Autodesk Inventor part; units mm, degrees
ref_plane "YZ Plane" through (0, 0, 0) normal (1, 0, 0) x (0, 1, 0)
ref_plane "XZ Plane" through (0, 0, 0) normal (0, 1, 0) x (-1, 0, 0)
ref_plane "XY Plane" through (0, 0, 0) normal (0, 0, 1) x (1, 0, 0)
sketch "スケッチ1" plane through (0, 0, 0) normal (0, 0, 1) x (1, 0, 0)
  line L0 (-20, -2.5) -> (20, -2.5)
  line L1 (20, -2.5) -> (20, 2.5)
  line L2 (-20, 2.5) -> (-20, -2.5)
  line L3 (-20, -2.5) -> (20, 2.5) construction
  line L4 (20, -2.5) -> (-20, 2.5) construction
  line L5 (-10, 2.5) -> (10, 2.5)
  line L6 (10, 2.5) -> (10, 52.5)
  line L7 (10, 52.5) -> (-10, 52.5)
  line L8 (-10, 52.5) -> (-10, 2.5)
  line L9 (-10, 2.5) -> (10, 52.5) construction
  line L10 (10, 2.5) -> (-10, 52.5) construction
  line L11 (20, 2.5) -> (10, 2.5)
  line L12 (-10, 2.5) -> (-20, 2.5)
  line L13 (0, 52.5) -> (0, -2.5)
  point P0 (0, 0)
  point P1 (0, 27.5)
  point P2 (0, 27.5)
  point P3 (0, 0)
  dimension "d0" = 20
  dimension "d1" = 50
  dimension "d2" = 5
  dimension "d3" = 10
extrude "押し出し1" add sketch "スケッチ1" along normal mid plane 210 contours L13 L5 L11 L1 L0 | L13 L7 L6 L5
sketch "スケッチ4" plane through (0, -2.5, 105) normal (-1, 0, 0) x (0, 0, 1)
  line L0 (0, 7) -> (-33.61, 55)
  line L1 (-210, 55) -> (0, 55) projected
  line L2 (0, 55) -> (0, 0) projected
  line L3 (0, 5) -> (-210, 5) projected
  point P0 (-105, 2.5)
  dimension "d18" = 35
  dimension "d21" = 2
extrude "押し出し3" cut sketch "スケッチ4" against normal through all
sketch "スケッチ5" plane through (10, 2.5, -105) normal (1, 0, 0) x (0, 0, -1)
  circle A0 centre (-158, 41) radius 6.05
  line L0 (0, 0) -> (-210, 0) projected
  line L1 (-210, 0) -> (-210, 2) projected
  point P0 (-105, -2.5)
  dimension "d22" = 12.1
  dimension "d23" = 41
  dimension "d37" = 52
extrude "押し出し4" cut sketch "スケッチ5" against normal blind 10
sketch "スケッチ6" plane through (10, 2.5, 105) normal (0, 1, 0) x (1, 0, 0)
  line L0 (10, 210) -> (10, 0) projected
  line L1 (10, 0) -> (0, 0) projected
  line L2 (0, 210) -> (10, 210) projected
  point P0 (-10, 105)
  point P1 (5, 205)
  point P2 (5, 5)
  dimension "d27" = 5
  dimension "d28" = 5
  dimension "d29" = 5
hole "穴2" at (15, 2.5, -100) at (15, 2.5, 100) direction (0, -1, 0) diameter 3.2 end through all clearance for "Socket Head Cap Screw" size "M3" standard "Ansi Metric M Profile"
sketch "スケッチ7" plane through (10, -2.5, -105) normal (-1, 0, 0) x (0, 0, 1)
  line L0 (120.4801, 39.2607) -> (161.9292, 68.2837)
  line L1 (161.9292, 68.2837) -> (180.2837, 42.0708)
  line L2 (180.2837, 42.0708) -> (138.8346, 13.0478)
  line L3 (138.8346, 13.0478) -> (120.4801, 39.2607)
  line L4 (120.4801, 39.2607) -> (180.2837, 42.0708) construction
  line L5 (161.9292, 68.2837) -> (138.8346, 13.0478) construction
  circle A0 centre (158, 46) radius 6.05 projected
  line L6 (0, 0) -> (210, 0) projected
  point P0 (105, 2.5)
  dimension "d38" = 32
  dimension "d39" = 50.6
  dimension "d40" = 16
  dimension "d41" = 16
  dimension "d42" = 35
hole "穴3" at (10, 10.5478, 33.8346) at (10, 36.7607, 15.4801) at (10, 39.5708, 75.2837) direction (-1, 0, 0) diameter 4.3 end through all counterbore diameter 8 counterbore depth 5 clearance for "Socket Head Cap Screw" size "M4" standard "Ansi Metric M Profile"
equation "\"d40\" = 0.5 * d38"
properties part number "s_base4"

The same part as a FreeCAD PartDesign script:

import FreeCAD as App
import Part
import Sketcher

V = App.Vector
Q = App.Units.Quantity

doc = App.newDocument("Part")
body = doc.addObject("PartDesign::Body", "Body")

sketch1 = body.newObject("Sketcher::SketchObject", "Sketch")
sketch1.AttachmentSupport = (doc.getObject("XY_Plane"), [""])
sketch1.MapMode = "FlatFace"
sketch1.addGeometry(Part.LineSegment(V(0, -2, 0), V(20, -2, 0)), False)
sketch1.addGeometry(Part.LineSegment(V(20, -2, 0), V(20, 2, 0)), False)
sketch1.addGeometry(Part.LineSegment(V(20, 2, 0), V(10, 2, 0)), False)
sketch1.addGeometry(Part.LineSegment(V(10, 2, 0), V(10, 52, 0)), False)
sketch1.addGeometry(Part.LineSegment(V(10, 52, 0), V(0, 52, 0)), False)
sketch1.addGeometry(Part.LineSegment(V(0, 52, 0), V(0, -2, 0)), False)
sketch1.addConstraint(Sketcher.Constraint("Coincident", 0, 2, 1, 1))
sketch1.addConstraint(Sketcher.Constraint("Coincident", 1, 2, 2, 1))
sketch1.addConstraint(Sketcher.Constraint("Coincident", 2, 2, 3, 1))
sketch1.addConstraint(Sketcher.Constraint("Coincident", 3, 2, 4, 1))
sketch1.addConstraint(Sketcher.Constraint("Coincident", 4, 2, 5, 1))
sketch1.addConstraint(Sketcher.Constraint("Coincident", 5, 2, 0, 1))
sketch1.addConstraint(Sketcher.Constraint("Horizontal", 0))
sketch1.addConstraint(Sketcher.Constraint("Vertical", 1))
sketch1.addConstraint(Sketcher.Constraint("Horizontal", 2))
sketch1.addConstraint(Sketcher.Constraint("Vertical", 3))
sketch1.addConstraint(Sketcher.Constraint("Horizontal", 4))
sketch1.addConstraint(Sketcher.Constraint("Vertical", 5))
sketch1.addConstraint(Sketcher.Constraint("PointOnObject", 4, 2, -2))
sketch1.addConstraint(Sketcher.Constraint("Equal", 2, 4))
sketch1.addConstraint(Sketcher.Constraint("DistanceX", 0, 1, 0, 2, 20.0))
sketch1.addConstraint(Sketcher.Constraint("DistanceY", 1, 1, 1, 2, 5.0))
sketch1.addConstraint(Sketcher.Constraint("DistanceY", 3, 1, 3, 2, 50.0))
sketch1.addConstraint(Sketcher.Constraint("DistanceY", 0, 2, -1, 1, 2.5))
pad1 = body.newObject("PartDesign::Pad", "Pad")
pad1.Profile = sketch1
pad1.Length = 210
pad1.Midplane = True

sketch2 = body.newObject("Sketcher::SketchObject", "Sketch001")
sketch2.AttachmentSupport = (doc.getObject("YZ_Plane"), [""])
sketch2.MapMode = "FlatFace"
sketch2.addGeometry(Part.LineSegment(V(52, 71, 0), V(4, 105, 0)), False)
sketch2.addGeometry(Part.LineSegment(V(4, 105, 0), V(52, 105, 0)), False)
sketch2.addGeometry(Part.LineSegment(V(52, 105, 0), V(52, 71, 0)), False)
sketch2.addConstraint(Sketcher.Constraint("Coincident", 0, 2, 1, 1))
sketch2.addConstraint(Sketcher.Constraint("Coincident", 1, 2, 2, 1))
sketch2.addConstraint(Sketcher.Constraint("Coincident", 2, 2, 0, 1))
sketch2.addConstraint(Sketcher.Constraint("Horizontal", 1))
sketch2.addConstraint(Sketcher.Constraint("Vertical", 2))
sketch2.addConstraint(Sketcher.Constraint("DistanceX", 1, 1, 1, 2, 48.0))
sketch2.addConstraint(Sketcher.Constraint("Angle", 0, Q("145 deg")))
sketch2.addConstraint(Sketcher.Constraint("DistanceY", -1, 1, 0, 2, 105.0))
sketch2.addConstraint(Sketcher.Constraint("DistanceX", -1, 1, 0, 2, 4.5))
pocket1 = body.newObject("PartDesign::Pocket", "Pocket")
pocket1.Profile = sketch2
pocket1.Type = "ThroughAll"
pocket1.Reversed = True

sketch3 = body.newObject("Sketcher::SketchObject", "Sketch002")
sketch3.AttachmentSupport = (doc.getObject("YZ_Plane"), [""])
sketch3.MapMode = "FlatFace"
sketch3.AttachmentOffset = App.Placement(V(0, 0, 10), App.Rotation())
sketch3.addGeometry(Part.Circle(V(44, 53, 0), V(0, 0, 1), 6), False)
sketch3.addConstraint(Sketcher.Constraint("Diameter", 0, 12.1))
sketch3.addConstraint(Sketcher.Constraint("DistanceY", -1, 1, 0, 3, 53.0))
sketch3.addConstraint(Sketcher.Constraint("DistanceX", -1, 1, 0, 3, 43.5))
pocket2 = body.newObject("PartDesign::Pocket", "Pocket001")
pocket2.Profile = sketch3
pocket2.Length = 10

sketch4 = body.newObject("Sketcher::SketchObject", "Sketch003")
sketch4.AttachmentSupport = (doc.getObject("XZ_Plane"), [""])
sketch4.MapMode = "FlatFace"
sketch4.AttachmentOffset = App.Placement(V(0, 0, -2.5), App.Rotation())
sketch4.addGeometry(Part.Circle(V(15, -100, 0), V(0, 0, 1), 1.6), False)
sketch4.addGeometry(Part.Circle(V(15, 100, 0), V(0, 0, 1), 1.6), False)
sketch4.addConstraint(Sketcher.Constraint("Equal", 0, 1))
sketch4.addConstraint(Sketcher.Constraint("Symmetric", 0, 3, 1, 3, -1))
sketch4.addConstraint(Sketcher.Constraint("Diameter", 0, 3.2))
sketch4.addConstraint(Sketcher.Constraint("DistanceX", -1, 1, 0, 3, 15.0))
sketch4.addConstraint(Sketcher.Constraint("DistanceY", 0, 3, -1, 1, 100.0))
doc.recompute()
hole = body.newObject("PartDesign::Hole", "Hole")
hole.Profile = sketch4
hole.ThreadType = "None"
hole.Diameter = 3.2
hole.DepthType = "ThroughAll"
hole.Reversed = True

sketch5 = body.newObject("Sketcher::SketchObject", "Sketch004")
sketch5.AttachmentSupport = (doc.getObject("YZ_Plane"), [""])
sketch5.MapMode = "FlatFace"
sketch5.AttachmentOffset = App.Placement(V(0, 0, 10), App.Rotation())
sketch5.addGeometry(Part.Circle(V(10.5, 33.8, 0), V(0, 0, 1), 2.1), False)
sketch5.addGeometry(Part.Circle(V(36.8, 15.5, 0), V(0, 0, 1), 2.1), False)
sketch5.addGeometry(Part.Circle(V(39.6, 75.3, 0), V(0, 0, 1), 2.1), False)
sketch5.addConstraint(Sketcher.Constraint("Equal", 0, 1))
sketch5.addConstraint(Sketcher.Constraint("Equal", 1, 2))
sketch5.addConstraint(Sketcher.Constraint("Diameter", 0, 4.3))
sketch5.addConstraint(Sketcher.Constraint("DistanceY", -1, 1, 1, 3, 15.48))
sketch5.addConstraint(Sketcher.Constraint("DistanceX", 1, 3, 2, 3, 2.81))
sketch5.addConstraint(Sketcher.Constraint("DistanceX", 0, 3, 1, 3, 26.213))
sketch5.addConstraint(Sketcher.Constraint("DistanceY", 0, 3, 2, 3, 41.449))
sketch5.addConstraint(Sketcher.Constraint("DistanceX", -1, 1, 0, 3, 10.5478))
sketch5.addConstraint(Sketcher.Constraint("DistanceY", -1, 1, 0, 3, 33.8346))
doc.recompute()
hole2 = body.newObject("PartDesign::Hole", "Hole001")
hole2.Profile = sketch5
hole2.ThreadType = "None"
hole2.Diameter = 4.3
hole2.DepthType = "ThroughAll"
hole2.HoleCutType = "Counterbore"
hole2.HoleCutDiameter = 8
hole2.HoleCutDepth = 5

doc.recompute()
